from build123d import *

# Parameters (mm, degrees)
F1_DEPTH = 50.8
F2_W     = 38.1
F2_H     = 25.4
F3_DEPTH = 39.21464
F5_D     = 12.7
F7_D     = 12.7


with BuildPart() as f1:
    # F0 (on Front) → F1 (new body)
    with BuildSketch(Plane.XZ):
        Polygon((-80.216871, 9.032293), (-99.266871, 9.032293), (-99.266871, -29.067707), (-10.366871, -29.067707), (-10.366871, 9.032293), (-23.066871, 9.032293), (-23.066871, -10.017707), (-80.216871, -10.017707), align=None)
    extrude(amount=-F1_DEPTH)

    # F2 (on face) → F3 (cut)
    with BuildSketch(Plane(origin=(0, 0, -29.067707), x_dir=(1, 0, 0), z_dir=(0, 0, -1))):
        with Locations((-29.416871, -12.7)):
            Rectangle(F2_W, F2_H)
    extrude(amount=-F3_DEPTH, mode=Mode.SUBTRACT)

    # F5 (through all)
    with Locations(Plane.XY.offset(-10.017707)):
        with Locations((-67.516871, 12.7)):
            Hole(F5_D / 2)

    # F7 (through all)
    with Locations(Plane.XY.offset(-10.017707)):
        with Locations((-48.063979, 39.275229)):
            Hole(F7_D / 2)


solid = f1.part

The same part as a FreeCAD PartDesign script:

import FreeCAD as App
import Part
import Sketcher

V = App.Vector
Q = App.Units.Quantity

doc = App.newDocument("Part")
body = doc.addObject("PartDesign::Body", "Body")

# Sketch on XZ plane
sketch1 = body.newObject("Sketcher::SketchObject", "Sketch")
sketch1.AttachmentSupport = (doc.getObject("XZ_Plane"), [""])
sketch1.MapMode = "FlatFace"
sketch1.addGeometry(Part.LineSegment(V(-80, 9, 0), V(-99, 9, 0)), False)
sketch1.addGeometry(Part.LineSegment(V(-99, 9, 0), V(-99, -29, 0)), False)
sketch1.addGeometry(Part.LineSegment(V(-99, -29, 0), V(-10, -29, 0)), False)
sketch1.addGeometry(Part.LineSegment(V(-10, -29, 0), V(-10, 9, 0)), False)
sketch1.addGeometry(Part.LineSegment(V(-10, 9, 0), V(-23, 9, 0)), False)
sketch1.addGeometry(Part.LineSegment(V(-23, 9, 0), V(-23, -10, 0)), False)
sketch1.addGeometry(Part.LineSegment(V(-23, -10, 0), V(-80, -10, 0)), False)
sketch1.addGeometry(Part.LineSegment(V(-80, -10, 0), V(-80, 9, 0)), False)
sketch1.addConstraint(Sketcher.Constraint("Coincident", 0, 2, 1, 1))
sketch1.addConstraint(Sketcher.Constraint("Coincident", 1, 2, 2, 1))
sketch1.addConstraint(Sketcher.Constraint("Coincident", 2, 2, 3, 1))
sketch1.addConstraint(Sketcher.Constraint("Coincident", 3, 2, 4, 1))
sketch1.addConstraint(Sketcher.Constraint("Coincident", 4, 2, 5, 1))
sketch1.addConstraint(Sketcher.Constraint("Coincident", 5, 2, 6, 1))
sketch1.addConstraint(Sketcher.Constraint("Coincident", 6, 2, 7, 1))
sketch1.addConstraint(Sketcher.Constraint("Coincident", 7, 2, 0, 1))
sketch1.addConstraint(Sketcher.Constraint("Horizontal", 0))
sketch1.addConstraint(Sketcher.Constraint("Vertical", 1))
sketch1.addConstraint(Sketcher.Constraint("Horizontal", 2))
sketch1.addConstraint(Sketcher.Constraint("Vertical", 3))
sketch1.addConstraint(Sketcher.Constraint("Horizontal", 4))
sketch1.addConstraint(Sketcher.Constraint("Vertical", 5))
sketch1.addConstraint(Sketcher.Constraint("Horizontal", 6))
sketch1.addConstraint(Sketcher.Constraint("Vertical", 7))
sketch1.addConstraint(Sketcher.Constraint("Horizontal", 0, 2, 3, 2))
sketch1.addConstraint(Sketcher.Constraint("Equal", 0, 5))
sketch1.addConstraint(Sketcher.Constraint("DistanceX", 2, 1, 2, 2, Q("3.5 in")))
sketch1.addConstraint(Sketcher.Constraint("DistanceX", 4, 2, 4, 1, Q("0.5 in")))
sketch1.addConstraint(Sketcher.Constraint("DistanceY", 1, 2, 1, 1, Q("1.5 in")))
sketch1.addConstraint(Sketcher.Constraint("DistanceX", 0, 2, 0, 1, Q("0.75 in")))
sketch1.addConstraint(Sketcher.Constraint("DistanceX", 0, 2, -1, 1, Q("99.266871 mm")))
sketch1.addConstraint(Sketcher.Constraint("DistanceY", -1, 1, 0, 2, Q("9.032293 mm")))
pad1 = body.newObject("PartDesign::Pad", "Pad")
pad1.Profile = sketch1
pad1.Length = Q("2 in")
pad1.Reversed = True

# Sketch on XY plane
sketch2 = body.newObject("Sketcher::SketchObject", "Sketch001")
sketch2.AttachmentSupport = (doc.getObject("XY_Plane"), [""])
sketch2.MapMode = "FlatFace"
sketch2.AttachmentOffset = App.Placement(V(0, 0, -29.067707), App.Rotation())
sketch2.addGeometry(Part.LineSegment(V(-48, 0, 0), V(-48, 25, 0)), False)
sketch2.addGeometry(Part.LineSegment(V(-48, 25, 0), V(-10, 25, 0)), False)
sketch2.addGeometry(Part.LineSegment(V(-10, 25, 0), V(-10, 0, 0)), False)
sketch2.addGeometry(Part.LineSegment(V(-10, 0, 0), V(-48, 0, 0)), False)
sketch2.addConstraint(Sketcher.Constraint("Coincident", 0, 2, 1, 1))
sketch2.addConstraint(Sketcher.Constraint("Coincident", 1, 2, 2, 1))
sketch2.addConstraint(Sketcher.Constraint("Coincident", 2, 2, 3, 1))
sketch2.addConstraint(Sketcher.Constraint("Coincident", 3, 2, 0, 1))
sketch2.addConstraint(Sketcher.Constraint("Vertical", 0))
sketch2.addConstraint(Sketcher.Constraint("Horizontal", 1))
sketch2.addConstraint(Sketcher.Constraint("Vertical", 2))
sketch2.addConstraint(Sketcher.Constraint("Horizontal", 3))
sketch2.addConstraint(Sketcher.Constraint("PointOnObject", 2, 2, -1))
sketch2.addConstraint(Sketcher.Constraint("DistanceY", 0, 1, 0, 2, Q("1 in")))
sketch2.addConstraint(Sketcher.Constraint("DistanceX", 1, 1, 1, 2, Q("1.5 in")))
sketch2.addConstraint(Sketcher.Constraint("DistanceX", 0, 2, -1, 1, Q("48.466871 mm")))
pocket1 = body.newObject("PartDesign::Pocket", "Pocket")
pocket1.Profile = sketch2
pocket1.Length = 39.21464
pocket1.Reversed = True

# Sketch on XY plane
sketch3 = body.newObject("Sketcher::SketchObject", "Sketch002")
sketch3.AttachmentSupport = (doc.getObject("XY_Plane"), [""])
sketch3.MapMode = "FlatFace"
sketch3.AttachmentOffset = App.Placement(V(0, 0, -10.017707), App.Rotation())
sketch3.addGeometry(Part.Circle(V(-68, 13, 0), V(0, 0, 1), 6), False)
sketch3.addConstraint(Sketcher.Constraint("Diameter", 0, Q("0.5 in")))
sketch3.addConstraint(Sketcher.Constraint("DistanceY", -1, 1, 0, 3, Q("0.5 in")))
sketch3.addConstraint(Sketcher.Constraint("DistanceX", 0, 3, -1, 1, Q("67.516871 mm")))
doc.recompute()
hole = body.newObject("PartDesign::Hole", "Hole")
hole.Profile = sketch3
hole.ThreadType = "None"
hole.Diameter = Q("0.5 in")
hole.DepthType = "ThroughAll"

# Sketch on XY plane
sketch4 = body.newObject("Sketcher::SketchObject", "Sketch003")
sketch4.AttachmentSupport = (doc.getObject("XY_Plane"), [""])
sketch4.MapMode = "FlatFace"
sketch4.AttachmentOffset = App.Placement(V(0, 0, -10.017707), App.Rotation())
sketch4.addGeometry(Part.Circle(V(-48, 39, 0), V(0, 0, 1), 6), False)
sketch4.addConstraint(Sketcher.Constraint("Diameter", 0, Q("0.5 in")))
sketch4.addConstraint(Sketcher.Constraint("DistanceX", 0, 3, -1, 1, Q("48.063979 mm")))
sketch4.addConstraint(Sketcher.Constraint("DistanceY", -1, 1, 0, 3, Q("39.275229 mm")))
doc.recompute()
hole2 = body.newObject("PartDesign::Hole", "Hole001")
hole2.Profile = sketch4
hole2.ThreadType = "None"
hole2.Diameter = Q("0.5 in")
hole2.DepthType = "ThroughAll"

doc.recompute()
